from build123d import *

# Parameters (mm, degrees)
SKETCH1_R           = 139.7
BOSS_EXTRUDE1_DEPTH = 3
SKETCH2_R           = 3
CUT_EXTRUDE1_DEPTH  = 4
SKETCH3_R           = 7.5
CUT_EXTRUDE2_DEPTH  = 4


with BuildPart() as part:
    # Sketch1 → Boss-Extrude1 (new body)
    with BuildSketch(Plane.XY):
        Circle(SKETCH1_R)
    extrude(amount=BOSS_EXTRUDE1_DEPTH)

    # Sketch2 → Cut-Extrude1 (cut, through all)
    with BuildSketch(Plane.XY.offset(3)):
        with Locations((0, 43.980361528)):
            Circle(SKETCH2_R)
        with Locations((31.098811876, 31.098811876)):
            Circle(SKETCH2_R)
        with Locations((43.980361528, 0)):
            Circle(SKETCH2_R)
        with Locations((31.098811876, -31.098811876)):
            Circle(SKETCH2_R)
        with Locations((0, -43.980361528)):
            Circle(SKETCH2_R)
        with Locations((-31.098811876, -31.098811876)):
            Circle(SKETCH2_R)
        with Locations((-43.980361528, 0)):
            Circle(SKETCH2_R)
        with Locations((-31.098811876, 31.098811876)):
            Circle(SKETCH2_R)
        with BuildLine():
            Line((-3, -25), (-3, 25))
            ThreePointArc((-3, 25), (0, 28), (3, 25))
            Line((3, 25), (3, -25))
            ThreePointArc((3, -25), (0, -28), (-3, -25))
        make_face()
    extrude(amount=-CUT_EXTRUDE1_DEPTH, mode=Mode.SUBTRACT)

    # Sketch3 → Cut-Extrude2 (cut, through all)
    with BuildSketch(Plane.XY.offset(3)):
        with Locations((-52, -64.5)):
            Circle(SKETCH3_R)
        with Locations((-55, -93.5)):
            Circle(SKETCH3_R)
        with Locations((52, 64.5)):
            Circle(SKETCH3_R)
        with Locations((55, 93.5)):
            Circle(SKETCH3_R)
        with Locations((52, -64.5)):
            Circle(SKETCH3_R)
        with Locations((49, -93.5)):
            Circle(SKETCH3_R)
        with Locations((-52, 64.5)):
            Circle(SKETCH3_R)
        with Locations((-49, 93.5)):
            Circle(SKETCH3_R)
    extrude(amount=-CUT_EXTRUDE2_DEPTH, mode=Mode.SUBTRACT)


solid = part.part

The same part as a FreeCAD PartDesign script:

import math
import FreeCAD as App
import Part
import Sketcher
from FreeCAD import Vector

doc = App.newDocument("Part")
body = doc.addObject("PartDesign::Body", "Body")

# Sketch on XY plane
sketch1 = doc.addObject("Sketcher::SketchObject", "Sketch")
body.addObject(sketch1)
sketch1.AttachmentSupport = (doc.XY_Plane, [""])
sketch1.MapMode = "FlatFace"
sketch1.addGeometry(Part.Circle(Vector(0, 0, 0), Vector(0, 0, 1), 140), False)
sketch1.addConstraint(Sketcher.Constraint("Coincident", 0, 3, -1, 1))
sketch1.addConstraint(Sketcher.Constraint("Diameter", 0, 279.4))
pad1 = doc.addObject("PartDesign::Pad", "Pad")
body.addObject(pad1)
pad1.Profile = sketch1
pad1.Length = 3

# Sketch on XY plane
sketch2 = doc.addObject("Sketcher::SketchObject", "Sketch001")
body.addObject(sketch2)
sketch2.AttachmentSupport = (doc.XY_Plane, [""])
sketch2.MapMode = "FlatFace"
sketch2.AttachmentOffset = App.Placement(Vector(0, 0, 3), App.Rotation())
sketch2.addGeometry(Part.Circle(Vector(0, 44, 0), Vector(0, 0, 1), 3), False)
sketch2.addGeometry(Part.Circle(Vector(31.1, 31.1, 0), Vector(0, 0, 1), 3), False)
sketch2.addGeometry(Part.Circle(Vector(44, 0, 0), Vector(0, 0, 1), 3), False)
sketch2.addGeometry(Part.Circle(Vector(31.1, -31.1, 0), Vector(0, 0, 1), 3), False)
sketch2.addGeometry(Part.Circle(Vector(0, -44, 0), Vector(0, 0, 1), 3), False)
sketch2.addGeometry(Part.Circle(Vector(-31.1, -31.1, 0), Vector(0, 0, 1), 3), False)
sketch2.addGeometry(Part.Circle(Vector(-44, 0, 0), Vector(0, 0, 1), 3), False)
sketch2.addGeometry(Part.Circle(Vector(-31.1, 31.1, 0), Vector(0, 0, 1), 3), False)
sketch2.addGeometry(Part.LineSegment(Vector(-3, 25, 0), Vector(-3, -25, 0)), False)
sketch2.addGeometry(Part.ArcOfCircle(Part.Circle(Vector(0, -25, 0), Vector(0, 0, 1), 3), math.radians(180), math.radians(360)), False)
sketch2.addGeometry(Part.LineSegment(Vector(3, -25, 0), Vector(3, 25, 0)), False)
sketch2.addGeometry(Part.ArcOfCircle(Part.Circle(Vector(0, 25, 0), Vector(0, 0, 1), 3), math.radians(0), math.radians(180)), False)
sketch2.addConstraint(Sketcher.Constraint("Tangent", 8, 2, 9, 1))
sketch2.addConstraint(Sketcher.Constraint("Tangent", 9, 2, 10, 1))
sketch2.addConstraint(Sketcher.Constraint("Tangent", 10, 2, 11, 1))
sketch2.addConstraint(Sketcher.Constraint("Tangent", 11, 2, 8, 1))
sketch2.addConstraint(Sketcher.Constraint("Vertical", 8))
sketch2.addConstraint(Sketcher.Constraint("Vertical", 10))
sketch2.addConstraint(Sketcher.Constraint("Equal", 0, 1))
sketch2.addConstraint(Sketcher.Constraint("Equal", 1, 2))
sketch2.addConstraint(Sketcher.Constraint("Equal", 2, 3))
sketch2.addConstraint(Sketcher.Constraint("Equal", 3, 4))
sketch2.addConstraint(Sketcher.Constraint("Equal", 4, 5))
sketch2.addConstraint(Sketcher.Constraint("Equal", 5, 6))
sketch2.addConstraint(Sketcher.Constraint("Equal", 6, 7))
sketch2.addConstraint(Sketcher.Constraint("Equal", 7, 9))
sketch2.addConstraint(Sketcher.Constraint("Symmetric", 0, 3, 4, 3, -1, 1))
sketch2.addConstraint(Sketcher.Constraint("Symmetric", 1, 3, 5, 3, -1, 1))
sketch2.addConstraint(Sketcher.Constraint("Symmetric", 2, 3, 6, 3, -1, 1))
sketch2.addConstraint(Sketcher.Constraint("Symmetric", 3, 3, 7, 3, -1, 1))
sketch2.addConstraint(Sketcher.Constraint("Symmetric", 9, 3, 11, 3, -1, 1))
sketch2.addConstraint(Sketcher.Constraint("Symmetric", 3, 3, 5, 3, -2))
sketch2.addConstraint(Sketcher.Constraint("PointOnObject", 0, 3, -2))
sketch2.addConstraint(Sketcher.Constraint("PointOnObject", 2, 3, -1))
sketch2.addConstraint(Sketcher.Constraint("Diameter", 0, 6.0))
sketch2.addConstraint(Sketcher.Constraint("DistanceY", 8, 2, 8, 1, 50.0))
sketch2.addConstraint(Sketcher.Constraint("DistanceY", -1, 1, 0, 3, 43.980362))
sketch2.addConstraint(Sketcher.Constraint("DistanceX", -1, 1, 1, 3, 31.098812))
sketch2.addConstraint(Sketcher.Constraint("DistanceY", -1, 1, 1, 3, 31.098812))
sketch2.addConstraint(Sketcher.Constraint("DistanceX", -1, 1, 2, 3, 43.980362))
pocket1 = doc.addObject("PartDesign::Pocket", "Pocket")
body.addObject(pocket1)
pocket1.Profile = sketch2
pocket1.Type = "ThroughAll"

# Sketch on XY plane
sketch3 = doc.addObject("Sketcher::SketchObject", "Sketch002")
body.addObject(sketch3)
sketch3.AttachmentSupport = (doc.XY_Plane, [""])
sketch3.MapMode = "FlatFace"
sketch3.AttachmentOffset = App.Placement(Vector(0, 0, 3), App.Rotation())
sketch3.addGeometry(Part.Circle(Vector(-52, -64, 0), Vector(0, 0, 1), 8), False)
sketch3.addGeometry(Part.Circle(Vector(-55, -94, 0), Vector(0, 0, 1), 8), False)
sketch3.addGeometry(Part.Circle(Vector(52, 64, 0), Vector(0, 0, 1), 8), False)
sketch3.addGeometry(Part.Circle(Vector(55, 94, 0), Vector(0, 0, 1), 8), False)
sketch3.addGeometry(Part.Circle(Vector(52, -64, 0), Vector(0, 0, 1), 8), False)
sketch3.addGeometry(Part.Circle(Vector(49, -94, 0), Vector(0, 0, 1), 8), False)
sketch3.addGeometry(Part.Circle(Vector(-52, 64, 0), Vector(0, 0, 1), 8), False)
sketch3.addGeometry(Part.Circle(Vector(-49, 94, 0), Vector(0, 0, 1), 8), False)
sketch3.addConstraint(Sketcher.Constraint("Equal", 0, 1))
sketch3.addConstraint(Sketcher.Constraint("Equal", 1, 2))
sketch3.addConstraint(Sketcher.Constraint("Equal", 2, 3))
sketch3.addConstraint(Sketcher.Constraint("Equal", 3, 4))
sketch3.addConstraint(Sketcher.Constraint("Equal", 4, 5))
sketch3.addConstraint(Sketcher.Constraint("Equal", 5, 6))
sketch3.addConstraint(Sketcher.Constraint("Equal", 6, 7))
sketch3.addConstraint(Sketcher.Constraint("Symmetric", 0, 3, 2, 3, -1, 1))
sketch3.addConstraint(Sketcher.Constraint("Symmetric", 1, 3, 3, 3, -1, 1))
sketch3.addConstraint(Sketcher.Constraint("Symmetric", 4, 3, 6, 3, -1, 1))
sketch3.addConstraint(Sketcher.Constraint("Symmetric", 5, 3, 7, 3, -1, 1))
sketch3.addConstraint(Sketcher.Constraint("Symmetric", 0, 3, 4, 3, -2))
sketch3.addConstraint(Sketcher.Constraint("Horizontal", 1, 3, 5, 3))
sketch3.addConstraint(Sketcher.Constraint("Diameter", 0, 15.0))
sketch3.addConstraint(Sketcher.Constraint("DistanceX", 0, 3, -1, 1, 52.0))
sketch3.addConstraint(Sketcher.Constraint("DistanceX", 1, 3, -1, 1, 55.0))
sketch3.addConstraint(Sketcher.Constraint("DistanceX", -1, 1, 5, 3, 49.0))
sketch3.addConstraint(Sketcher.Constraint("DistanceY", 1, 3, 0, 3, 29.0))
sketch3.addConstraint(Sketcher.Constraint("DistanceY", 0, 3, 2, 3, 129.0))
pocket2 = doc.addObject("PartDesign::Pocket", "Pocket001")
body.addObject(pocket2)
pocket2.Profile = sketch3
pocket2.Type = "ThroughAll"

doc.recompute()
